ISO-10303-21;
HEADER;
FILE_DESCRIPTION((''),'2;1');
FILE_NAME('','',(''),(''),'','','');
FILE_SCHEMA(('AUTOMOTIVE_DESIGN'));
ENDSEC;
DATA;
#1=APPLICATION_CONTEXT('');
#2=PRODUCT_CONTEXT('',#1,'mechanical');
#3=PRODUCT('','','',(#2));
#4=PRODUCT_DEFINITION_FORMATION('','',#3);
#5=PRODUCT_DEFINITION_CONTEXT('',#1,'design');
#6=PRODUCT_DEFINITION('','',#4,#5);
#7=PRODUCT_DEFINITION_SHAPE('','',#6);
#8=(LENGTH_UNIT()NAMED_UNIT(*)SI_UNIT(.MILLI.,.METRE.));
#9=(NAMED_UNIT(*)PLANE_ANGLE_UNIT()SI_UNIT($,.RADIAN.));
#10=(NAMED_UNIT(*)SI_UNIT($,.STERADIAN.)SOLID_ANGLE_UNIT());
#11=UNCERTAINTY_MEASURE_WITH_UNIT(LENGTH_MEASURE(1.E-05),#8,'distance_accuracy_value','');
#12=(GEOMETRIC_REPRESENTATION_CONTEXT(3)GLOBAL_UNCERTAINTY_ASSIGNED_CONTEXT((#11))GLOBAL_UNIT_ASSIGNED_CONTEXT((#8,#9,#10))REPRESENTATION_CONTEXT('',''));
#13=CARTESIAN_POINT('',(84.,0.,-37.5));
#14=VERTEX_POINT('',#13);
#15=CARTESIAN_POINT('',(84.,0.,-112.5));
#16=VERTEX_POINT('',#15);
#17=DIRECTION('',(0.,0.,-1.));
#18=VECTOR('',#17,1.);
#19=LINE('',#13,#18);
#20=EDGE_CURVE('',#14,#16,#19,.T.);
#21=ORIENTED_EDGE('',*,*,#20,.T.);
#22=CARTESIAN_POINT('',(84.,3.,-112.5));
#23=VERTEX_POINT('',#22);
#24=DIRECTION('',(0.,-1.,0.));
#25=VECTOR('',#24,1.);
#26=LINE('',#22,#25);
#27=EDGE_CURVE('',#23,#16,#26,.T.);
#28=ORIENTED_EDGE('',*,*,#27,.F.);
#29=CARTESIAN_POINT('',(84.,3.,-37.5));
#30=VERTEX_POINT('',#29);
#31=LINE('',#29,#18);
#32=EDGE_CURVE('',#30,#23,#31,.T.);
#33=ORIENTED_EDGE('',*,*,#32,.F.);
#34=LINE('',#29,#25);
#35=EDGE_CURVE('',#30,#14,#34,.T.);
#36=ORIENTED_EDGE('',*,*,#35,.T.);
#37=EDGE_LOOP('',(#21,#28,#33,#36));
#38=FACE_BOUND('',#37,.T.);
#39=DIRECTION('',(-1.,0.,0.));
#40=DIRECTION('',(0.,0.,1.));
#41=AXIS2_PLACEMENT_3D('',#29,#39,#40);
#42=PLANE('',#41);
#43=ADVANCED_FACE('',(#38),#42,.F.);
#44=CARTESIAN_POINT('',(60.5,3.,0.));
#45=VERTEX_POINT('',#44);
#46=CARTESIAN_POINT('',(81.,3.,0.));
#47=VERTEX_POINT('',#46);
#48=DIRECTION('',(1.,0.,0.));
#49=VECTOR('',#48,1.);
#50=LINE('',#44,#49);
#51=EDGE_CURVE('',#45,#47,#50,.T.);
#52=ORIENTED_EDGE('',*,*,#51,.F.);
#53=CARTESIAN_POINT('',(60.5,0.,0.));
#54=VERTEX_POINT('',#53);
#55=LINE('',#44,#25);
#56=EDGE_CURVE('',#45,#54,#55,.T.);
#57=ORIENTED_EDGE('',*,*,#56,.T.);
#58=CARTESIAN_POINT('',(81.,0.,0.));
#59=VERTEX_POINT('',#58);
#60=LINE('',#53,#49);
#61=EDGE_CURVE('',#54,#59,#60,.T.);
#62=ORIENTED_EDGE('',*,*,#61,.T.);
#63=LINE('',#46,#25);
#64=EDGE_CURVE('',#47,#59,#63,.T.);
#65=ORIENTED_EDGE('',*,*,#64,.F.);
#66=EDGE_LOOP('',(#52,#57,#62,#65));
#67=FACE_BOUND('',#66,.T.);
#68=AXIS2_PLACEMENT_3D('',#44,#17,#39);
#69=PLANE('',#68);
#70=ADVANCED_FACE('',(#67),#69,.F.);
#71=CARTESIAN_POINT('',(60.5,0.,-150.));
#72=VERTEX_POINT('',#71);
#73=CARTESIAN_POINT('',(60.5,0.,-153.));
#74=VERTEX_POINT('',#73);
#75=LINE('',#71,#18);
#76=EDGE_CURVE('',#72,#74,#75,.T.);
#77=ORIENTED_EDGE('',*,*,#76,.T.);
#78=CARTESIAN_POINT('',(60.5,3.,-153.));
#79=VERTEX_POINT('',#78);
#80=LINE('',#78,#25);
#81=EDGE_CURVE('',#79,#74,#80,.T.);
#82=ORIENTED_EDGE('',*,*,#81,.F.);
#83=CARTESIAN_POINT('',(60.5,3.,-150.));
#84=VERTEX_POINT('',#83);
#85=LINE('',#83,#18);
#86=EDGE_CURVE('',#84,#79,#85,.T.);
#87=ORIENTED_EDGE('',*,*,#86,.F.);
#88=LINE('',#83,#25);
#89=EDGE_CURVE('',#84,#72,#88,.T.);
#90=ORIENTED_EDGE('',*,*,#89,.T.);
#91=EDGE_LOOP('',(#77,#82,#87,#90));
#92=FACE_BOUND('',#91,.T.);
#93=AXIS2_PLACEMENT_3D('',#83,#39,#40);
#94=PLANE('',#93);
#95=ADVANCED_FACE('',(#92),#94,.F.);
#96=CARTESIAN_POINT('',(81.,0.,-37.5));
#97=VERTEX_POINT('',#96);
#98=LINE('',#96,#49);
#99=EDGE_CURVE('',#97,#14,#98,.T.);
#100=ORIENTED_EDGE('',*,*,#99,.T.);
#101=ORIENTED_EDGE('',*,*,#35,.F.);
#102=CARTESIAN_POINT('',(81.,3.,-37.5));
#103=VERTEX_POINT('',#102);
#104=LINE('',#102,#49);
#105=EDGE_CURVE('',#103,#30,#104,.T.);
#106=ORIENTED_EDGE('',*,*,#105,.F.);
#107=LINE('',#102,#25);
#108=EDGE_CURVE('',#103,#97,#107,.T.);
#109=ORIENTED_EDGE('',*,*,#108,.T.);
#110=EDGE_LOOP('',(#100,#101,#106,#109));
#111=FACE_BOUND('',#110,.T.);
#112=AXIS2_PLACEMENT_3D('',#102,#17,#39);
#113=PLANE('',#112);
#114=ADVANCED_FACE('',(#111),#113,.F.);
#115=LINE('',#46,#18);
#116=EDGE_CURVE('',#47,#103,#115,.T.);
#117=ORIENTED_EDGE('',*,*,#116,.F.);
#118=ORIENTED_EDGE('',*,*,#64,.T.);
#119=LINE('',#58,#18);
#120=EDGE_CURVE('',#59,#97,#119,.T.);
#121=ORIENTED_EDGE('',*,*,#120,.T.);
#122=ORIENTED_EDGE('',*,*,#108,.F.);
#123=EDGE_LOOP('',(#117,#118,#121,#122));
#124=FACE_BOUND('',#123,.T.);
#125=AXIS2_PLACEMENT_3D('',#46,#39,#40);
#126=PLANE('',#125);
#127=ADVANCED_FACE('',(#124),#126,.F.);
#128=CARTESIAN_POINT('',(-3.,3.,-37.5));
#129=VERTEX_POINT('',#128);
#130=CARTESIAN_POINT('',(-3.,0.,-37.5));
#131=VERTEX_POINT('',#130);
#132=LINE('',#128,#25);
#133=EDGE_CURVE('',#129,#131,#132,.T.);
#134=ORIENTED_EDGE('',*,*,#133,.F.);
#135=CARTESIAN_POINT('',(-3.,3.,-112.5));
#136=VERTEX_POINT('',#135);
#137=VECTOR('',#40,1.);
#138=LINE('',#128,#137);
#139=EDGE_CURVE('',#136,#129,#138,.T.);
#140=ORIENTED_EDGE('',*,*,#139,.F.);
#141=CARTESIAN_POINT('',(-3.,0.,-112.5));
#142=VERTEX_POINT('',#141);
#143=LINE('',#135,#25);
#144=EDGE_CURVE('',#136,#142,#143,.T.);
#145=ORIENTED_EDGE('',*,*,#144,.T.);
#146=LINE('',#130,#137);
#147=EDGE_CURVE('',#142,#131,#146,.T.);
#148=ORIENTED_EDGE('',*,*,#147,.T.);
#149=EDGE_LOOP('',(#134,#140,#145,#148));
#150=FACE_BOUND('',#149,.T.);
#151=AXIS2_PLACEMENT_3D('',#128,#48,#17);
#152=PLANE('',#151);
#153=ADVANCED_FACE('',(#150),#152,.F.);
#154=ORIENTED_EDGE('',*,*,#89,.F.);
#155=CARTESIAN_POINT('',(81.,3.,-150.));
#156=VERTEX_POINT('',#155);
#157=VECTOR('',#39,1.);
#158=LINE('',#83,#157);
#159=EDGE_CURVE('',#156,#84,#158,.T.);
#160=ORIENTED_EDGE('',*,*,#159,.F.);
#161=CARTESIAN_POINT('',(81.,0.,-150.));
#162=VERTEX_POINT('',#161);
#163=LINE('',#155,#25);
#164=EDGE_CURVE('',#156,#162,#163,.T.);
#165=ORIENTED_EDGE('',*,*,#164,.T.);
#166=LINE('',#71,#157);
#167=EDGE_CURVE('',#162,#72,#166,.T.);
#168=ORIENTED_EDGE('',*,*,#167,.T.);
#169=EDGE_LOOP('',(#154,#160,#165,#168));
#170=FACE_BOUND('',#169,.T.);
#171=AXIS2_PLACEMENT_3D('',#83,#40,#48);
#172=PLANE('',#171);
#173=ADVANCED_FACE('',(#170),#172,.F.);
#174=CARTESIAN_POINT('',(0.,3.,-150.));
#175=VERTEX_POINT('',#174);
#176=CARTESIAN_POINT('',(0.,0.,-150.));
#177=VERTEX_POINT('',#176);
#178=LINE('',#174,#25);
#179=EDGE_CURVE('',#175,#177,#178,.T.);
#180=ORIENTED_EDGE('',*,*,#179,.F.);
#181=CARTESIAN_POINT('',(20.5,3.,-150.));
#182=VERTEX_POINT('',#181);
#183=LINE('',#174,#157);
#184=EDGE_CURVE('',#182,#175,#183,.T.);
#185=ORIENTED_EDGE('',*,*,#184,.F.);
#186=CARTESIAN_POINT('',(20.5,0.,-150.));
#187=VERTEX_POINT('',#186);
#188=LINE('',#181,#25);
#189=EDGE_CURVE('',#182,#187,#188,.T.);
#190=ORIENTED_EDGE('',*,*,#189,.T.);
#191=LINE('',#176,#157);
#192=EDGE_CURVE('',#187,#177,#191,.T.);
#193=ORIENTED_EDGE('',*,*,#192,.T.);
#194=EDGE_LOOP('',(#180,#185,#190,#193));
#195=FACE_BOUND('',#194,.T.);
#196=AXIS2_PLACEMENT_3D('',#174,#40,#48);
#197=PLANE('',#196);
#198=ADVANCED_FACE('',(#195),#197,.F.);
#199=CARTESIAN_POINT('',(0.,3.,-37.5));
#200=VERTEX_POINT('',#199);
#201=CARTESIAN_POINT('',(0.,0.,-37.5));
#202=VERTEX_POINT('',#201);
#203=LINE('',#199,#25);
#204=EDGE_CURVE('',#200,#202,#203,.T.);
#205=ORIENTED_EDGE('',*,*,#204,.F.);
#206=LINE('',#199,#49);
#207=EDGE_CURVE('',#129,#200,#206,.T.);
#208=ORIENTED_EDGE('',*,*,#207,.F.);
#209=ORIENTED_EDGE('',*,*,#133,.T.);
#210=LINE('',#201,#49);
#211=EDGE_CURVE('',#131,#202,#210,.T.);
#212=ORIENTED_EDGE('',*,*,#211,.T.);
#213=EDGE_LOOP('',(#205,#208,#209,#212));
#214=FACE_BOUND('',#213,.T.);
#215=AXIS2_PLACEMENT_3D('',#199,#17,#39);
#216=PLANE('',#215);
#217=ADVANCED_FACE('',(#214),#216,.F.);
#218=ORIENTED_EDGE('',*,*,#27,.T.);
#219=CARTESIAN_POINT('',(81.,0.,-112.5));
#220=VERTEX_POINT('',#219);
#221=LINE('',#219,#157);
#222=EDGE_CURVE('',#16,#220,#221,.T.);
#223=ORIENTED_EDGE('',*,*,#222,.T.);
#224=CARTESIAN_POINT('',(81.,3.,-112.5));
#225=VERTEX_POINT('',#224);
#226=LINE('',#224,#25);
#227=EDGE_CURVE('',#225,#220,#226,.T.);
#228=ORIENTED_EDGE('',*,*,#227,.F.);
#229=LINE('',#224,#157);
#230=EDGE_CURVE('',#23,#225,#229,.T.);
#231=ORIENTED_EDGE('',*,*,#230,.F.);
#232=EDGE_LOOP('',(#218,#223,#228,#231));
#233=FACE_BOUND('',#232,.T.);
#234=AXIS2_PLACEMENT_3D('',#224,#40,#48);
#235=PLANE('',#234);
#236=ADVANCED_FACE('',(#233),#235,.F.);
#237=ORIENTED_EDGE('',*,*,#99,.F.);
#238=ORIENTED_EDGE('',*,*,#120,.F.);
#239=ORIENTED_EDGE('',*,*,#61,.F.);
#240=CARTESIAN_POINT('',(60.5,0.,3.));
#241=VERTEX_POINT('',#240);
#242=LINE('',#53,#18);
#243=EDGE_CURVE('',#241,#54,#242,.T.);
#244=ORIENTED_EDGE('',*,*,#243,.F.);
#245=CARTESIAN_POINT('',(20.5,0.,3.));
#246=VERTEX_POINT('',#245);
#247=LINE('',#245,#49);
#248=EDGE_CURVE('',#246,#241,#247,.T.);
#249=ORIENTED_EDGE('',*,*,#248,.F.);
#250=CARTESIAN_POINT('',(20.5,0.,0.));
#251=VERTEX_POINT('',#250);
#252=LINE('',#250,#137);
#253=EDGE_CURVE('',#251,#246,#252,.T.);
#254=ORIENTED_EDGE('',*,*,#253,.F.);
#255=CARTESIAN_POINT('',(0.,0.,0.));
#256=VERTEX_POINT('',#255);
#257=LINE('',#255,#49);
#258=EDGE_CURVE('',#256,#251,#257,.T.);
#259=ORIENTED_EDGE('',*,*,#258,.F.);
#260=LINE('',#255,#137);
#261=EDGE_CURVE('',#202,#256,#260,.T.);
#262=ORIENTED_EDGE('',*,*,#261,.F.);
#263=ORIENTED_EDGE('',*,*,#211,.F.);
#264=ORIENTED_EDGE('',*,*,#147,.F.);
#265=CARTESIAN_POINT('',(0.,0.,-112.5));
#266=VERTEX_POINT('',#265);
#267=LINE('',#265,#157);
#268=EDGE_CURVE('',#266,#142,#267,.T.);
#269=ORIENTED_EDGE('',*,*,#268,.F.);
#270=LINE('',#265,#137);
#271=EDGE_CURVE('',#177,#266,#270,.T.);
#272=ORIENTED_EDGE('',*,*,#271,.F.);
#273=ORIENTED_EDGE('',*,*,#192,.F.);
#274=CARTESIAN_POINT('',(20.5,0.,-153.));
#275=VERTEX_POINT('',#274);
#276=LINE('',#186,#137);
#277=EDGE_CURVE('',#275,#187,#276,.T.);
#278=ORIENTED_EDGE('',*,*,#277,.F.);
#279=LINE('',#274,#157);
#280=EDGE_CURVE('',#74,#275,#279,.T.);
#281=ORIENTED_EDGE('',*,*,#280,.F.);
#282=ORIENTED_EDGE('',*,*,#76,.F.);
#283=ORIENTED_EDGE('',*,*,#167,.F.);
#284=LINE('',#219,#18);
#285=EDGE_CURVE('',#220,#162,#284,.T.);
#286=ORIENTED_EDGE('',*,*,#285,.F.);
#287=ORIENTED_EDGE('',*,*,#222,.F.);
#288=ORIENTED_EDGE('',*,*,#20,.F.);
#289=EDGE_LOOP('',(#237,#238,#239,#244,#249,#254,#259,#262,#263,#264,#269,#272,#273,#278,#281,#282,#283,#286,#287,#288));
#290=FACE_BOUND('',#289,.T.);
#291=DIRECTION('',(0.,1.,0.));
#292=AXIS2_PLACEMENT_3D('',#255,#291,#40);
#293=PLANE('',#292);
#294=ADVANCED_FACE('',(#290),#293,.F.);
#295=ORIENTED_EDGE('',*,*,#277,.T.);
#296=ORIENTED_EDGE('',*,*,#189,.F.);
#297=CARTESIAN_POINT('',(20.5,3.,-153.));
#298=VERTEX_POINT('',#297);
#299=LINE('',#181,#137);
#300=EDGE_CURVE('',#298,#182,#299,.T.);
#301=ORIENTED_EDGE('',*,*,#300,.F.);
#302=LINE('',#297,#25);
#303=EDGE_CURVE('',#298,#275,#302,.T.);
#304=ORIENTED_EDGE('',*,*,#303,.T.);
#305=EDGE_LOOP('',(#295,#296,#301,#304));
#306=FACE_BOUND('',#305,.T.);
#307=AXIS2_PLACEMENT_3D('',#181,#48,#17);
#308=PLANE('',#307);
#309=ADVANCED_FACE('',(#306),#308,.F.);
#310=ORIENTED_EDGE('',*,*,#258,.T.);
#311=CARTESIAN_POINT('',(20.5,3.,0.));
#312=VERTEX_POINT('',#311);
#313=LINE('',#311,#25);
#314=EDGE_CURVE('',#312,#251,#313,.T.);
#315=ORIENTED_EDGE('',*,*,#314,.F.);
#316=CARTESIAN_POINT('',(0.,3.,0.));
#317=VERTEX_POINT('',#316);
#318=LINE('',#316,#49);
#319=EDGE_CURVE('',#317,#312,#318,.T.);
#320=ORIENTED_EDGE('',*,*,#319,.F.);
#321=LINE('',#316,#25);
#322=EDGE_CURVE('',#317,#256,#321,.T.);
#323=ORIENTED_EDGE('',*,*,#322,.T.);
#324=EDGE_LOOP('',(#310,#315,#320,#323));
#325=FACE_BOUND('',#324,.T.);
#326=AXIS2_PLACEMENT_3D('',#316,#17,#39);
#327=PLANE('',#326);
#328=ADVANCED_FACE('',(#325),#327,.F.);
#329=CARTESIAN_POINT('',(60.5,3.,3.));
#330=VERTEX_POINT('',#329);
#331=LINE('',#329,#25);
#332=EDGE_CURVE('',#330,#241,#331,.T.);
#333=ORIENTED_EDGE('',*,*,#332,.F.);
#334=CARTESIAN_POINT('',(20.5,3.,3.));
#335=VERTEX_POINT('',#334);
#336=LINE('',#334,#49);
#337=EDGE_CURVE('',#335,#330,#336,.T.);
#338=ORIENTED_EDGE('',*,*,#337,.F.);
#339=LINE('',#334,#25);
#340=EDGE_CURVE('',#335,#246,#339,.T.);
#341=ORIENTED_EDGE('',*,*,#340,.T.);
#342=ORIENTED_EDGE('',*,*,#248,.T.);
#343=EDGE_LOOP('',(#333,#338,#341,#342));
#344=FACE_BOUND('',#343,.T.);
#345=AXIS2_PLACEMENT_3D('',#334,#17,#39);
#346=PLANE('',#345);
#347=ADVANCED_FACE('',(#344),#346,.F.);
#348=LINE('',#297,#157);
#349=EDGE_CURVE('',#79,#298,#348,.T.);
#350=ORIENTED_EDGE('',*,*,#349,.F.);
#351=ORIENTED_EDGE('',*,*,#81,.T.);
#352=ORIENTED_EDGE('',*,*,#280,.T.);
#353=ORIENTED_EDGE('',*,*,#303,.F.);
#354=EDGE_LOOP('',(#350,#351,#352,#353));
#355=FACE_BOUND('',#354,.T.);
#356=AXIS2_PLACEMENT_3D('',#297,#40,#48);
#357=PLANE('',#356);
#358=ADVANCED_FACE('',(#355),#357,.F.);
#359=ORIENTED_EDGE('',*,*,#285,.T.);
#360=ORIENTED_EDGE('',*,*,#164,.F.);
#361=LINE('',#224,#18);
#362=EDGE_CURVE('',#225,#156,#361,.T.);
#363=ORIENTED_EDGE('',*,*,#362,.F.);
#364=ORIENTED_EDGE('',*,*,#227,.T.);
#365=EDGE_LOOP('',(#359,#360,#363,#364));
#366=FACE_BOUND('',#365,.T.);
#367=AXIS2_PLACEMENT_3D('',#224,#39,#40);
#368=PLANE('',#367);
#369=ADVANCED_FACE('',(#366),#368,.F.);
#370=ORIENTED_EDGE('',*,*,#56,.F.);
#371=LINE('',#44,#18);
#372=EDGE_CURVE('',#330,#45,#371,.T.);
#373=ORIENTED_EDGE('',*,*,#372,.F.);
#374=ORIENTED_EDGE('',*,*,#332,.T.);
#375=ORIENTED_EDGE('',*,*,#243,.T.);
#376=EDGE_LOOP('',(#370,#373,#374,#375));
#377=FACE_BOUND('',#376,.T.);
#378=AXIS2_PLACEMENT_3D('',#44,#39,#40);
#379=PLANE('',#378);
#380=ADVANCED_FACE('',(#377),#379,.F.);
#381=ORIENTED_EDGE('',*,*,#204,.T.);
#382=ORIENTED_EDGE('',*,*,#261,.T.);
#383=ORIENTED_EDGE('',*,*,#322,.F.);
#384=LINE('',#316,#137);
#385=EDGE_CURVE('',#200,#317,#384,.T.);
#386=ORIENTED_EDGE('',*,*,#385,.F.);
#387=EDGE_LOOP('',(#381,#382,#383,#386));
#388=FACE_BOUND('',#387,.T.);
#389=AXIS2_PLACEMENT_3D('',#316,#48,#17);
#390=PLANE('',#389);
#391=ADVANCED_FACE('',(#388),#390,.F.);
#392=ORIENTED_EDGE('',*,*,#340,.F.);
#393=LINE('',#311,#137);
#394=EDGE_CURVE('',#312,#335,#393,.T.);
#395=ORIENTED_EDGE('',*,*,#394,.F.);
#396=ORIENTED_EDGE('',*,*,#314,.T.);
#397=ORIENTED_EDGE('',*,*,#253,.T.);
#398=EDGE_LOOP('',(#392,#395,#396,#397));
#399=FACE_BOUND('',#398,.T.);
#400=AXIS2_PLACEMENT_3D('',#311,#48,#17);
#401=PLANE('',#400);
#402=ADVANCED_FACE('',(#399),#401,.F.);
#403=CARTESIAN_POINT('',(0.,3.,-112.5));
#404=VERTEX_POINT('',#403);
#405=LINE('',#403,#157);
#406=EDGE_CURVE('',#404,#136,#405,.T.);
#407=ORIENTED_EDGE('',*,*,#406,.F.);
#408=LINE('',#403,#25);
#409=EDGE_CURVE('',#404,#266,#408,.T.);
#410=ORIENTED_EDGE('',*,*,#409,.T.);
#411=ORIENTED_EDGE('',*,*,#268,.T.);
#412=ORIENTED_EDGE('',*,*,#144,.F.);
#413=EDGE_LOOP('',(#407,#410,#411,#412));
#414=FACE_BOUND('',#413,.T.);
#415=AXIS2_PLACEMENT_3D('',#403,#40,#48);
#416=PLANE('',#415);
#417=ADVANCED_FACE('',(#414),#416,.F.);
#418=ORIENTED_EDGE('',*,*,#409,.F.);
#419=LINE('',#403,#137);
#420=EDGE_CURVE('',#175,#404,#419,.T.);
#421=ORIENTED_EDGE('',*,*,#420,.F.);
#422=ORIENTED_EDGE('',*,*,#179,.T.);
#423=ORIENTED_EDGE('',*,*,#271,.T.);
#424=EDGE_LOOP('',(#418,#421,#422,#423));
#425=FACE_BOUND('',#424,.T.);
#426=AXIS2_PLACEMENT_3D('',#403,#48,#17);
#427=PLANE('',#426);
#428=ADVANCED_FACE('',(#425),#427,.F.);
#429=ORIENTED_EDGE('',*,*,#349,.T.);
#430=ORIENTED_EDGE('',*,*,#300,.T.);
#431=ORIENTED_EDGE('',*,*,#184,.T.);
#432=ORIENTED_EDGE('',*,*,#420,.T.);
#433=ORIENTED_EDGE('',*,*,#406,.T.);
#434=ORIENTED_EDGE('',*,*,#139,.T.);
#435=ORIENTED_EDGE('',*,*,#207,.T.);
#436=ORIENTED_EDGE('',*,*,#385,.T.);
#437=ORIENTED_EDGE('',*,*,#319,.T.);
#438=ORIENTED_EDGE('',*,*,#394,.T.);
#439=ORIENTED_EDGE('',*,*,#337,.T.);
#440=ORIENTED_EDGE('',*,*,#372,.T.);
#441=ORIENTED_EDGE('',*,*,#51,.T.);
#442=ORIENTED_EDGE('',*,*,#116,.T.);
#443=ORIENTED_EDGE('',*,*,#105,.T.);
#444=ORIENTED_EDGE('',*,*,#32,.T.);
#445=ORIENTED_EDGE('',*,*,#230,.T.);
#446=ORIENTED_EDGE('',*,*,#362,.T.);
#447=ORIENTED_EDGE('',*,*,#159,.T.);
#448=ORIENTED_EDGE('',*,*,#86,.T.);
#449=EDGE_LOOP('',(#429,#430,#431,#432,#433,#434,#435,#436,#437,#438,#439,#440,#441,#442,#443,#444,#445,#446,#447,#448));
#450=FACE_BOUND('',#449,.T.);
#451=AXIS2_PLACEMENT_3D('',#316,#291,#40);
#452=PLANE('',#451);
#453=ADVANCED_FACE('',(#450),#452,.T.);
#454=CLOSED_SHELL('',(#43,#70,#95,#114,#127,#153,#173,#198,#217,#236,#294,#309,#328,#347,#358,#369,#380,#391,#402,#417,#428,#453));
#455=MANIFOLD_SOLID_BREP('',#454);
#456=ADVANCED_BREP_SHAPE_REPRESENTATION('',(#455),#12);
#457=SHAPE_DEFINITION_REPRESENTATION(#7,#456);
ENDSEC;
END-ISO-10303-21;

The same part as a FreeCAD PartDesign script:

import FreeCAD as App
import Part
import Sketcher
from FreeCAD import Vector

doc = App.newDocument("Part")
body = doc.addObject("PartDesign::Body", "Body")

# Sketch on XZ plane
sketch1 = body.newObject("Sketcher::SketchObject", "Sketch")
sketch1.AttachmentSupport = (doc.getObject("XZ_Plane"), [""])
sketch1.MapMode = "FlatFace"
sketch1.addGeometry(Part.LineSegment(Vector(0, -150, 0), Vector(0, -112.5, 0)), False)
sketch1.addGeometry(Part.LineSegment(Vector(0, -112.5, 0), Vector(-3, -112.5, 0)), False)
sketch1.addGeometry(Part.LineSegment(Vector(-3, -112.5, 0), Vector(-3, -37.5, 0)), False)
sketch1.addGeometry(Part.LineSegment(Vector(-3, -37.5, 0), Vector(0, -37.5, 0)), False)
sketch1.addGeometry(Part.LineSegment(Vector(0, -37.5, 0), Vector(0, 0, 0)), False)
sketch1.addGeometry(Part.LineSegment(Vector(0, 0, 0), Vector(20.5, 0, 0)), False)
sketch1.addGeometry(Part.LineSegment(Vector(20.5, 0, 0), Vector(20.5, 3, 0)), False)
sketch1.addGeometry(Part.LineSegment(Vector(20.5, 3, 0), Vector(60.5, 3, 0)), False)
sketch1.addGeometry(Part.LineSegment(Vector(60.5, 3, 0), Vector(60.5, 0, 0)), False)
sketch1.addGeometry(Part.LineSegment(Vector(60.5, 0, 0), Vector(81, 0, 0)), False)
sketch1.addGeometry(Part.LineSegment(Vector(81, 0, 0), Vector(81, -37.5, 0)), False)
sketch1.addGeometry(Part.LineSegment(Vector(81, -37.5, 0), Vector(84, -37.5, 0)), False)
sketch1.addGeometry(Part.LineSegment(Vector(84, -37.5, 0), Vector(84, -112.5, 0)), False)
sketch1.addGeometry(Part.LineSegment(Vector(84, -112.5, 0), Vector(81, -112.5, 0)), False)
sketch1.addGeometry(Part.LineSegment(Vector(81, -112.5, 0), Vector(81, -150, 0)), False)
sketch1.addGeometry(Part.LineSegment(Vector(81, -150, 0), Vector(60.5, -150, 0)), False)
sketch1.addGeometry(Part.LineSegment(Vector(60.5, -150, 0), Vector(60.5, -153, 0)), False)
sketch1.addGeometry(Part.LineSegment(Vector(60.5, -153, 0), Vector(20.5, -153, 0)), False)
sketch1.addGeometry(Part.LineSegment(Vector(20.5, -153, 0), Vector(20.5, -150, 0)), False)
sketch1.addGeometry(Part.LineSegment(Vector(20.5, -150, 0), Vector(0, -150, 0)), False)
sketch1.addConstraint(Sketcher.Constraint("Coincident", 0, 2, 1, 1))
sketch1.addConstraint(Sketcher.Constraint("Coincident", 1, 2, 2, 1))
sketch1.addConstraint(Sketcher.Constraint("Coincident", 2, 2, 3, 1))
sketch1.addConstraint(Sketcher.Constraint("Coincident", 3, 2, 4, 1))
sketch1.addConstraint(Sketcher.Constraint("Coincident", 4, 2, 5, 1))
sketch1.addConstraint(Sketcher.Constraint("Coincident", 5, 2, 6, 1))
sketch1.addConstraint(Sketcher.Constraint("Coincident", 6, 2, 7, 1))
sketch1.addConstraint(Sketcher.Constraint("Coincident", 7, 2, 8, 1))
sketch1.addConstraint(Sketcher.Constraint("Coincident", 8, 2, 9, 1))
sketch1.addConstraint(Sketcher.Constraint("Coincident", 9, 2, 10, 1))
sketch1.addConstraint(Sketcher.Constraint("Coincident", 10, 2, 11, 1))
sketch1.addConstraint(Sketcher.Constraint("Coincident", 11, 2, 12, 1))
sketch1.addConstraint(Sketcher.Constraint("Coincident", 12, 2, 13, 1))
sketch1.addConstraint(Sketcher.Constraint("Coincident", 13, 2, 14, 1))
sketch1.addConstraint(Sketcher.Constraint("Coincident", 14, 2, 15, 1))
sketch1.addConstraint(Sketcher.Constraint("Coincident", 15, 2, 16, 1))
sketch1.addConstraint(Sketcher.Constraint("Coincident", 16, 2, 17, 1))
sketch1.addConstraint(Sketcher.Constraint("Coincident", 17, 2, 18, 1))
sketch1.addConstraint(Sketcher.Constraint("Coincident", 18, 2, 19, 1))
sketch1.addConstraint(Sketcher.Constraint("Coincident", 19, 2, 0, 1))
sketch1.addConstraint(Sketcher.Constraint("Vertical", 0))
sketch1.addConstraint(Sketcher.Constraint("Horizontal", 1))
sketch1.addConstraint(Sketcher.Constraint("Vertical", 2))
sketch1.addConstraint(Sketcher.Constraint("Horizontal", 3))
sketch1.addConstraint(Sketcher.Constraint("Vertical", 4))
sketch1.addConstraint(Sketcher.Constraint("Horizontal", 5))
sketch1.addConstraint(Sketcher.Constraint("Vertical", 6))
sketch1.addConstraint(Sketcher.Constraint("Horizontal", 7))
sketch1.addConstraint(Sketcher.Constraint("Vertical", 8))
sketch1.addConstraint(Sketcher.Constraint("Horizontal", 9))
sketch1.addConstraint(Sketcher.Constraint("Vertical", 10))
sketch1.addConstraint(Sketcher.Constraint("Horizontal", 11))
sketch1.addConstraint(Sketcher.Constraint("Vertical", 12))
sketch1.addConstraint(Sketcher.Constraint("Horizontal", 13))
sketch1.addConstraint(Sketcher.Constraint("Vertical", 14))
sketch1.addConstraint(Sketcher.Constraint("Horizontal", 15))
sketch1.addConstraint(Sketcher.Constraint("Vertical", 16))
sketch1.addConstraint(Sketcher.Constraint("Horizontal", 17))
sketch1.addConstraint(Sketcher.Constraint("Vertical", 18))
sketch1.addConstraint(Sketcher.Constraint("Horizontal", 19))
sketch1.addConstraint(Sketcher.Constraint("Coincident", 4, 2, -1, 1))
sketch1.addConstraint(Sketcher.Constraint("PointOnObject", 0, 2, -2))
sketch1.addConstraint(Sketcher.Constraint("PointOnObject", 8, 2, -1))
sketch1.addConstraint(Sketcher.Constraint("Horizontal", 3, 2, 10, 2))
sketch1.addConstraint(Sketcher.Constraint("Horizontal", 1, 2, 12, 2))
sketch1.addConstraint(Sketcher.Constraint("Horizontal", 15, 2, 18, 2))
sketch1.addConstraint(Sketcher.Constraint("Vertical", 10, 2, 13, 2))
sketch1.addConstraint(Sketcher.Constraint("Vertical", 8, 2, 15, 2))
sketch1.addConstraint(Sketcher.Constraint("Vertical", 6, 2, 17, 2))
sketch1.addConstraint(Sketcher.Constraint("Equal", 5, 9))
sketch1.addConstraint(Sketcher.Constraint("Equal", 3, 11))
sketch1.addConstraint(Sketcher.Constraint("Equal", 0, 4))
sketch1.addConstraint(Sketcher.Constraint("Equal", 13, 6))
sketch1.addConstraint(Sketcher.Constraint("Equal", 8, 16))
sketch1.addConstraint(Sketcher.Constraint("DistanceX", 1, 2, 1, 1, 3.0))
sketch1.addConstraint(Sketcher.Constraint("DistanceX", 7, 1, 7, 2, 40.0))
sketch1.addConstraint(Sketcher.Constraint("DistanceY", 2, 1, 2, 2, 75.0))
sketch1.addConstraint(Sketcher.Constraint("DistanceX", 5, 1, 5, 2, 20.5))
sketch1.addConstraint(Sketcher.Constraint("DistanceY", 0, 1, 0, 2, 37.5))
pad1 = body.newObject("PartDesign::Pad", "Pad")
pad1.Profile = sketch1
pad1.Length = 3
pad1.Reversed = True

doc.recompute()
